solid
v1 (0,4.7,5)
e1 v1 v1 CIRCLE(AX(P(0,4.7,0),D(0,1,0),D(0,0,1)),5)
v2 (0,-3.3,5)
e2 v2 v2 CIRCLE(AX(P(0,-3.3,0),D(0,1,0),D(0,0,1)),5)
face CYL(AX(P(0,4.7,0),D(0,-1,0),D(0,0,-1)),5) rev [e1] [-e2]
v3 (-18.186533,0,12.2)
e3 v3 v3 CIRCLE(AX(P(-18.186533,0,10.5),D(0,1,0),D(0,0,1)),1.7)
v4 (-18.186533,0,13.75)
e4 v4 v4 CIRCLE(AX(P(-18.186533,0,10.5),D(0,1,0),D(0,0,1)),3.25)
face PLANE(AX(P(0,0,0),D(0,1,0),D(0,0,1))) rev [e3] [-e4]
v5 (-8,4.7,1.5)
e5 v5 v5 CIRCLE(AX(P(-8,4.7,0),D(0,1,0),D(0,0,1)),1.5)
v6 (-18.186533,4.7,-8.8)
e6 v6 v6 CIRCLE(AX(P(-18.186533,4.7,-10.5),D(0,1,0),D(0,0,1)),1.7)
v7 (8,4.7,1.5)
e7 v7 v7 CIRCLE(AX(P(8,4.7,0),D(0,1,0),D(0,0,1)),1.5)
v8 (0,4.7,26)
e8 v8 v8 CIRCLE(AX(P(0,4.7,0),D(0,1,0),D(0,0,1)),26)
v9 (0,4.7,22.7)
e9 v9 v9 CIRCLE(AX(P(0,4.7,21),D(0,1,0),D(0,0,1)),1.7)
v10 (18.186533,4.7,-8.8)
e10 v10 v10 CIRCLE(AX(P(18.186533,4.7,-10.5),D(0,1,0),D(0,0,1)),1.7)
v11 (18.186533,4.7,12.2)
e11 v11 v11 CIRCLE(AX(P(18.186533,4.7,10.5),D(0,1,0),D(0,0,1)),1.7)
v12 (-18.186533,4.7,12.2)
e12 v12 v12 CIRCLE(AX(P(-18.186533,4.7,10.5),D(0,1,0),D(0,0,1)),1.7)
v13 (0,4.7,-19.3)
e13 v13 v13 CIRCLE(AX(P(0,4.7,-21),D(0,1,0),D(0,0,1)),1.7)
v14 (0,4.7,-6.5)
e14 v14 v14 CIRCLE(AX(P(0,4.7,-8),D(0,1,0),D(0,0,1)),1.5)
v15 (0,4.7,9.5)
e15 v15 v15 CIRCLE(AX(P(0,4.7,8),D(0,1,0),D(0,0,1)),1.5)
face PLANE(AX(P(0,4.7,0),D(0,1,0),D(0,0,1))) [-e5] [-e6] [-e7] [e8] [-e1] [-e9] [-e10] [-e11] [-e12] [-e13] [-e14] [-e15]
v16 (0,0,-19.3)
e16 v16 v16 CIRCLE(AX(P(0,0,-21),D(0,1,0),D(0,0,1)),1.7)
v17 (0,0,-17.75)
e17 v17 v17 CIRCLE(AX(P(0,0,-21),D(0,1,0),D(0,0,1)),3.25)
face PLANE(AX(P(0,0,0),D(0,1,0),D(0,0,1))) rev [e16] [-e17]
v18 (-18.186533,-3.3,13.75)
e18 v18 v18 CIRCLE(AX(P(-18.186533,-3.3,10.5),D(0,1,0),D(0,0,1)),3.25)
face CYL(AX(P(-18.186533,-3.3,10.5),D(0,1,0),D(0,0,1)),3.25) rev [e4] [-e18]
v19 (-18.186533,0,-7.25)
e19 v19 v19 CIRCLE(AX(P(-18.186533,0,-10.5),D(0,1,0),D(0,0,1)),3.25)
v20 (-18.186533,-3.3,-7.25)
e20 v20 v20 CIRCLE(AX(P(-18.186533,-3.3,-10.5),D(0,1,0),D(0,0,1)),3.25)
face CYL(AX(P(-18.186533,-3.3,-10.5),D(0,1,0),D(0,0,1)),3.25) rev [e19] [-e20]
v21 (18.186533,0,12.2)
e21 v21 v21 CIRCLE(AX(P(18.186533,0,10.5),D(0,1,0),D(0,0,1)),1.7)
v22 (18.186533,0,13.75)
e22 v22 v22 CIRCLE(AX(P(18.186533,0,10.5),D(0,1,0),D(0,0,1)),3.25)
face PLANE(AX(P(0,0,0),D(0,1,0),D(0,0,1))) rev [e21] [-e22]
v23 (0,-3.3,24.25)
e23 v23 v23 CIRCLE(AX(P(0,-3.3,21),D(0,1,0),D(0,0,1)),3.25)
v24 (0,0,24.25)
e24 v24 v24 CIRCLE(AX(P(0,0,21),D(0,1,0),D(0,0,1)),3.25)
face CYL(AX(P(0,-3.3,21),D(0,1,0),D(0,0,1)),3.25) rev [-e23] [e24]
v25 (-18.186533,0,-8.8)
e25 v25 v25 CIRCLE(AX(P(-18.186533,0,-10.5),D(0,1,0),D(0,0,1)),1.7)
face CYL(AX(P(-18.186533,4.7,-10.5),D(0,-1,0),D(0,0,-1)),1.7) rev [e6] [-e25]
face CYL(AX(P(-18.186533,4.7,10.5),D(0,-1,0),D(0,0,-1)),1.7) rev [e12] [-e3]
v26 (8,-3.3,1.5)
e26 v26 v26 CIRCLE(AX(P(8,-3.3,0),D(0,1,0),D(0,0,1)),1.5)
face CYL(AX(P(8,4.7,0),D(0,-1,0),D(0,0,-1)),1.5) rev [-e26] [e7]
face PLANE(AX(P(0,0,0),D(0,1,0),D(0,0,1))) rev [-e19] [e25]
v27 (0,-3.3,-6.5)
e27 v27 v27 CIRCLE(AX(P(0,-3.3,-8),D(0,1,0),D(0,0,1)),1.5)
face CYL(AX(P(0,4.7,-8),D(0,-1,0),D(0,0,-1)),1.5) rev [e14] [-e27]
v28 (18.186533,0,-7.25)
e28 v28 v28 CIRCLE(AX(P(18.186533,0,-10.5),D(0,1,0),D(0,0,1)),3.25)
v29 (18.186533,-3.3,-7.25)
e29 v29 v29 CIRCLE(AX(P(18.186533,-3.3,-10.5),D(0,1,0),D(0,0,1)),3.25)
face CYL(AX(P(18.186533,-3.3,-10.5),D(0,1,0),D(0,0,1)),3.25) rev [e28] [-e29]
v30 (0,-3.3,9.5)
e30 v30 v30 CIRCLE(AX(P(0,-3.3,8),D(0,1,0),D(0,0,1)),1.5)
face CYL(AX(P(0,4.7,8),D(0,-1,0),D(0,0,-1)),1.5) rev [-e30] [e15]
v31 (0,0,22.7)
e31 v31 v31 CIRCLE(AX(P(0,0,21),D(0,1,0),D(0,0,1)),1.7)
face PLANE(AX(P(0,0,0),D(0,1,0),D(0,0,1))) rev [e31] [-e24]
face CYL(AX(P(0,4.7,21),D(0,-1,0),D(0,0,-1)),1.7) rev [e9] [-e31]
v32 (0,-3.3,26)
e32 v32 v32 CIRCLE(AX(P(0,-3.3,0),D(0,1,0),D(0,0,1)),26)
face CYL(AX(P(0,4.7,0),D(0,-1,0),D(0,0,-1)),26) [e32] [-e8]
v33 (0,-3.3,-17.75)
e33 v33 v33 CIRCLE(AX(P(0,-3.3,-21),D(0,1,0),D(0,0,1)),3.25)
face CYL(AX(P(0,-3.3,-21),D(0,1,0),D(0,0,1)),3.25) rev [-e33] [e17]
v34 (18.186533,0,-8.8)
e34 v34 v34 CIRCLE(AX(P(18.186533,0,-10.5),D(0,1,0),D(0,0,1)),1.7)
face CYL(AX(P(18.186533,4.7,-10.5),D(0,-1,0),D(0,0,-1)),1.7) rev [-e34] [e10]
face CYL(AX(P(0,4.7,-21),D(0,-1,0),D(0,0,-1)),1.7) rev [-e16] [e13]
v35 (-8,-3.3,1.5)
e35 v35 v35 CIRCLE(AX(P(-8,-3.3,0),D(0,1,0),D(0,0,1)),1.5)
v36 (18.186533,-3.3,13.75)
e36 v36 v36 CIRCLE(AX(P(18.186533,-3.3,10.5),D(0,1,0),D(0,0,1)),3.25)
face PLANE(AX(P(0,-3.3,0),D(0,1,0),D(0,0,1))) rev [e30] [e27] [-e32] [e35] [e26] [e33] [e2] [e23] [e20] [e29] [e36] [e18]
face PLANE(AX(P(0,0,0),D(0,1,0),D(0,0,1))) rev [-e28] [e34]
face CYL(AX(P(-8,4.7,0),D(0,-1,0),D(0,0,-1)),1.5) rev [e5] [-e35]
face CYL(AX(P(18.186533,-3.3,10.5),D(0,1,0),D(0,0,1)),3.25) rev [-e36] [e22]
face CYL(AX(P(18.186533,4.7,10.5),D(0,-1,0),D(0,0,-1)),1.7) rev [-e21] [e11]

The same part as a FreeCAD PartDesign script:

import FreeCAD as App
import Part
import Sketcher
Q = App.Units.Quantity

doc = App.newDocument("Part")
body = doc.addObject("PartDesign::Body", "Body")

# Sketch on XZ plane
sketch1 = body.newObject("Sketcher::SketchObject", "Sketch")
sketch1.AttachmentSupport = (doc.getObject("XZ_Plane"), [""])
sketch1.MapMode = "FlatFace"
sketch1.addGeometry([
    Part.Circle(App.Vector(0, 0, 0), App.Vector(0, 0, 1), 26),  # 0
    Part.Circle(App.Vector(-18.2, -10.5, 0), App.Vector(0, 0, 1), 1.7),  # 1
    Part.Circle(App.Vector(0, -21, 0), App.Vector(0, 0, 1), 1.7),  # 2
    Part.Circle(App.Vector(-18.2, 10.5, 0), App.Vector(0, 0, 1), 1.7),  # 3
    Part.Circle(App.Vector(-8, 0, 0), App.Vector(0, 0, 1), 1.5),  # 4
    Part.Circle(App.Vector(0, -8, 0), App.Vector(0, 0, 1), 1.5),  # 5
    Part.Circle(App.Vector(18.2, -10.5, 0), App.Vector(0, 0, 1), 1.7),  # 6
    Part.Circle(App.Vector(0, 0, 0), App.Vector(0, 0, 1), 5),  # 7
    Part.Circle(App.Vector(0, 8, 0), App.Vector(0, 0, 1), 1.5),  # 8
    Part.Circle(App.Vector(8, 0, 0), App.Vector(0, 0, 1), 1.5),  # 9
    Part.Circle(App.Vector(0, 21, 0), App.Vector(0, 0, 1), 1.7),  # 10
    Part.Circle(App.Vector(18.2, 10.5, 0), App.Vector(0, 0, 1), 1.7),  # 11
], False)
sketch1.addConstraint([
    Sketcher.Constraint("Coincident", 0, 3, -1, 1),
    Sketcher.Constraint("Coincident", 7, 3, -1, 1),
    Sketcher.Constraint("Equal", 1, 2),
    Sketcher.Constraint("Equal", 2, 3),
    Sketcher.Constraint("Equal", 4, 5),
    Sketcher.Constraint("Equal", 3, 6),
    Sketcher.Constraint("Equal", 5, 8),
    Sketcher.Constraint("Equal", 8, 9),
    Sketcher.Constraint("Equal", 6, 10),
    Sketcher.Constraint("Equal", 10, 11),
    Sketcher.Constraint("Symmetric", 3, 3, 6, 3, -1, 1),
    Sketcher.Constraint("Symmetric", 5, 3, 8, 3, -1, 1),
    Sketcher.Constraint("Symmetric", 4, 3, 9, 3, -1, 1),
    Sketcher.Constraint("Symmetric", 2, 3, 10, 3, -1, 1),
    Sketcher.Constraint("Symmetric", 1, 3, 11, 3, -1, 1),
    Sketcher.Constraint("Symmetric", 1, 3, 6, 3, -2),
    Sketcher.Constraint("PointOnObject", 2, 3, -2),
    Sketcher.Constraint("PointOnObject", 4, 3, -1),
    Sketcher.Constraint("PointOnObject", 5, 3, -2),
    Sketcher.Constraint("Diameter", 0, Q("52 mm")),
    Sketcher.Constraint("Diameter", 4, Q("3 mm")),
    Sketcher.Constraint("Diameter", 7, Q("10 mm")),
    Sketcher.Constraint("Diameter", 1, Q("3.4 mm")),
    Sketcher.Constraint("DistanceY", 2, 3, -1, 1, Q("21 mm")),
    Sketcher.Constraint("DistanceX", 4, 3, -1, 1, Q("8 mm")),
    Sketcher.Constraint("DistanceY", 5, 3, -1, 1, Q("8 mm")),
    Sketcher.Constraint("DistanceY", 1, 3, 3, 3, Q("21 mm")),
    Sketcher.Constraint("DistanceX", 1, 3, -1, 1, Q("18.186533 mm")),
])
pad1 = body.newObject("PartDesign::Pad", "Pad")
pad1.Profile = sketch1
pad1.Length = 4.7
pad1.Reversed = True

# Sketch on XZ plane
sketch2 = body.newObject("Sketcher::SketchObject", "Sketch001")
sketch2.AttachmentSupport = (doc.getObject("XZ_Plane"), [""])
sketch2.MapMode = "FlatFace"
sketch2.AttachmentOffset = App.Placement(App.Vector(0, 0, 3.3), App.Rotation())
sketch2.addGeometry([
    Part.Circle(App.Vector(0, 0, 0), App.Vector(0, 0, 1), 26),  # 0
    Part.Circle(App.Vector(-18.2, -10.5, 0), App.Vector(0, 0, 1), 3.2),  # 1
    Part.Circle(App.Vector(0, -21, 0), App.Vector(0, 0, 1), 3.2),  # 2
    Part.Circle(App.Vector(-18.2, 10.5, 0), App.Vector(0, 0, 1), 3.2),  # 3
    Part.Circle(App.Vector(-8, 0, 0), App.Vector(0, 0, 1), 1.5),  # 4
    Part.Circle(App.Vector(0, -8, 0), App.Vector(0, 0, 1), 1.5),  # 5
    Part.Circle(App.Vector(18.2, -10.5, 0), App.Vector(0, 0, 1), 3.2),  # 6
    Part.Circle(App.Vector(0, 0, 0), App.Vector(0, 0, 1), 5),  # 7
    Part.Circle(App.Vector(0, 8, 0), App.Vector(0, 0, 1), 1.5),  # 8
    Part.Circle(App.Vector(8, 0, 0), App.Vector(0, 0, 1), 1.5),  # 9
    Part.Circle(App.Vector(0, 21, 0), App.Vector(0, 0, 1), 3.2),  # 10
    Part.Circle(App.Vector(18.2, 10.5, 0), App.Vector(0, 0, 1), 3.2),  # 11
], False)
sketch2.addConstraint([
    Sketcher.Constraint("Coincident", 0, 3, -1, 1),
    Sketcher.Constraint("Coincident", 7, 3, -1, 1),
    Sketcher.Constraint("Equal", 1, 2),
    Sketcher.Constraint("Equal", 2, 3),
    Sketcher.Constraint("Equal", 4, 5),
    Sketcher.Constraint("Equal", 3, 6),
    Sketcher.Constraint("Equal", 5, 8),
    Sketcher.Constraint("Equal", 8, 9),
    Sketcher.Constraint("Equal", 6, 10),
    Sketcher.Constraint("Equal", 10, 11),
    Sketcher.Constraint("Symmetric", 3, 3, 6, 3, -1, 1),
    Sketcher.Constraint("Symmetric", 5, 3, 8, 3, -1, 1),
    Sketcher.Constraint("Symmetric", 4, 3, 9, 3, -1, 1),
    Sketcher.Constraint("Symmetric", 2, 3, 10, 3, -1, 1),
    Sketcher.Constraint("Symmetric", 1, 3, 11, 3, -1, 1),
    Sketcher.Constraint("Symmetric", 1, 3, 6, 3, -2),
    Sketcher.Constraint("PointOnObject", 2, 3, -2),
    Sketcher.Constraint("PointOnObject", 4, 3, -1),
    Sketcher.Constraint("PointOnObject", 5, 3, -2),
    Sketcher.Constraint("Diameter", 0, Q("52 mm")),
    Sketcher.Constraint("Diameter", 4, Q("3 mm")),
    Sketcher.Constraint("Diameter", 7, Q("10 mm")),
    Sketcher.Constraint("Diameter", 1, Q("6.5 mm")),
    Sketcher.Constraint("DistanceY", 2, 3, -1, 1, Q("21 mm")),
    Sketcher.Constraint("DistanceX", 4, 3, -1, 1, Q("8 mm")),
    Sketcher.Constraint("DistanceY", 5, 3, -1, 1, Q("8 mm")),
    Sketcher.Constraint("DistanceY", 1, 3, 3, 3, Q("21 mm")),
    Sketcher.Constraint("DistanceX", 1, 3, -1, 1, Q("18.186533 mm")),
])
pad2 = body.newObject("PartDesign::Pad", "Pad001")
pad2.Profile = sketch2
pad2.Length = 3.3
pad2.Reversed = True

doc.recompute()
